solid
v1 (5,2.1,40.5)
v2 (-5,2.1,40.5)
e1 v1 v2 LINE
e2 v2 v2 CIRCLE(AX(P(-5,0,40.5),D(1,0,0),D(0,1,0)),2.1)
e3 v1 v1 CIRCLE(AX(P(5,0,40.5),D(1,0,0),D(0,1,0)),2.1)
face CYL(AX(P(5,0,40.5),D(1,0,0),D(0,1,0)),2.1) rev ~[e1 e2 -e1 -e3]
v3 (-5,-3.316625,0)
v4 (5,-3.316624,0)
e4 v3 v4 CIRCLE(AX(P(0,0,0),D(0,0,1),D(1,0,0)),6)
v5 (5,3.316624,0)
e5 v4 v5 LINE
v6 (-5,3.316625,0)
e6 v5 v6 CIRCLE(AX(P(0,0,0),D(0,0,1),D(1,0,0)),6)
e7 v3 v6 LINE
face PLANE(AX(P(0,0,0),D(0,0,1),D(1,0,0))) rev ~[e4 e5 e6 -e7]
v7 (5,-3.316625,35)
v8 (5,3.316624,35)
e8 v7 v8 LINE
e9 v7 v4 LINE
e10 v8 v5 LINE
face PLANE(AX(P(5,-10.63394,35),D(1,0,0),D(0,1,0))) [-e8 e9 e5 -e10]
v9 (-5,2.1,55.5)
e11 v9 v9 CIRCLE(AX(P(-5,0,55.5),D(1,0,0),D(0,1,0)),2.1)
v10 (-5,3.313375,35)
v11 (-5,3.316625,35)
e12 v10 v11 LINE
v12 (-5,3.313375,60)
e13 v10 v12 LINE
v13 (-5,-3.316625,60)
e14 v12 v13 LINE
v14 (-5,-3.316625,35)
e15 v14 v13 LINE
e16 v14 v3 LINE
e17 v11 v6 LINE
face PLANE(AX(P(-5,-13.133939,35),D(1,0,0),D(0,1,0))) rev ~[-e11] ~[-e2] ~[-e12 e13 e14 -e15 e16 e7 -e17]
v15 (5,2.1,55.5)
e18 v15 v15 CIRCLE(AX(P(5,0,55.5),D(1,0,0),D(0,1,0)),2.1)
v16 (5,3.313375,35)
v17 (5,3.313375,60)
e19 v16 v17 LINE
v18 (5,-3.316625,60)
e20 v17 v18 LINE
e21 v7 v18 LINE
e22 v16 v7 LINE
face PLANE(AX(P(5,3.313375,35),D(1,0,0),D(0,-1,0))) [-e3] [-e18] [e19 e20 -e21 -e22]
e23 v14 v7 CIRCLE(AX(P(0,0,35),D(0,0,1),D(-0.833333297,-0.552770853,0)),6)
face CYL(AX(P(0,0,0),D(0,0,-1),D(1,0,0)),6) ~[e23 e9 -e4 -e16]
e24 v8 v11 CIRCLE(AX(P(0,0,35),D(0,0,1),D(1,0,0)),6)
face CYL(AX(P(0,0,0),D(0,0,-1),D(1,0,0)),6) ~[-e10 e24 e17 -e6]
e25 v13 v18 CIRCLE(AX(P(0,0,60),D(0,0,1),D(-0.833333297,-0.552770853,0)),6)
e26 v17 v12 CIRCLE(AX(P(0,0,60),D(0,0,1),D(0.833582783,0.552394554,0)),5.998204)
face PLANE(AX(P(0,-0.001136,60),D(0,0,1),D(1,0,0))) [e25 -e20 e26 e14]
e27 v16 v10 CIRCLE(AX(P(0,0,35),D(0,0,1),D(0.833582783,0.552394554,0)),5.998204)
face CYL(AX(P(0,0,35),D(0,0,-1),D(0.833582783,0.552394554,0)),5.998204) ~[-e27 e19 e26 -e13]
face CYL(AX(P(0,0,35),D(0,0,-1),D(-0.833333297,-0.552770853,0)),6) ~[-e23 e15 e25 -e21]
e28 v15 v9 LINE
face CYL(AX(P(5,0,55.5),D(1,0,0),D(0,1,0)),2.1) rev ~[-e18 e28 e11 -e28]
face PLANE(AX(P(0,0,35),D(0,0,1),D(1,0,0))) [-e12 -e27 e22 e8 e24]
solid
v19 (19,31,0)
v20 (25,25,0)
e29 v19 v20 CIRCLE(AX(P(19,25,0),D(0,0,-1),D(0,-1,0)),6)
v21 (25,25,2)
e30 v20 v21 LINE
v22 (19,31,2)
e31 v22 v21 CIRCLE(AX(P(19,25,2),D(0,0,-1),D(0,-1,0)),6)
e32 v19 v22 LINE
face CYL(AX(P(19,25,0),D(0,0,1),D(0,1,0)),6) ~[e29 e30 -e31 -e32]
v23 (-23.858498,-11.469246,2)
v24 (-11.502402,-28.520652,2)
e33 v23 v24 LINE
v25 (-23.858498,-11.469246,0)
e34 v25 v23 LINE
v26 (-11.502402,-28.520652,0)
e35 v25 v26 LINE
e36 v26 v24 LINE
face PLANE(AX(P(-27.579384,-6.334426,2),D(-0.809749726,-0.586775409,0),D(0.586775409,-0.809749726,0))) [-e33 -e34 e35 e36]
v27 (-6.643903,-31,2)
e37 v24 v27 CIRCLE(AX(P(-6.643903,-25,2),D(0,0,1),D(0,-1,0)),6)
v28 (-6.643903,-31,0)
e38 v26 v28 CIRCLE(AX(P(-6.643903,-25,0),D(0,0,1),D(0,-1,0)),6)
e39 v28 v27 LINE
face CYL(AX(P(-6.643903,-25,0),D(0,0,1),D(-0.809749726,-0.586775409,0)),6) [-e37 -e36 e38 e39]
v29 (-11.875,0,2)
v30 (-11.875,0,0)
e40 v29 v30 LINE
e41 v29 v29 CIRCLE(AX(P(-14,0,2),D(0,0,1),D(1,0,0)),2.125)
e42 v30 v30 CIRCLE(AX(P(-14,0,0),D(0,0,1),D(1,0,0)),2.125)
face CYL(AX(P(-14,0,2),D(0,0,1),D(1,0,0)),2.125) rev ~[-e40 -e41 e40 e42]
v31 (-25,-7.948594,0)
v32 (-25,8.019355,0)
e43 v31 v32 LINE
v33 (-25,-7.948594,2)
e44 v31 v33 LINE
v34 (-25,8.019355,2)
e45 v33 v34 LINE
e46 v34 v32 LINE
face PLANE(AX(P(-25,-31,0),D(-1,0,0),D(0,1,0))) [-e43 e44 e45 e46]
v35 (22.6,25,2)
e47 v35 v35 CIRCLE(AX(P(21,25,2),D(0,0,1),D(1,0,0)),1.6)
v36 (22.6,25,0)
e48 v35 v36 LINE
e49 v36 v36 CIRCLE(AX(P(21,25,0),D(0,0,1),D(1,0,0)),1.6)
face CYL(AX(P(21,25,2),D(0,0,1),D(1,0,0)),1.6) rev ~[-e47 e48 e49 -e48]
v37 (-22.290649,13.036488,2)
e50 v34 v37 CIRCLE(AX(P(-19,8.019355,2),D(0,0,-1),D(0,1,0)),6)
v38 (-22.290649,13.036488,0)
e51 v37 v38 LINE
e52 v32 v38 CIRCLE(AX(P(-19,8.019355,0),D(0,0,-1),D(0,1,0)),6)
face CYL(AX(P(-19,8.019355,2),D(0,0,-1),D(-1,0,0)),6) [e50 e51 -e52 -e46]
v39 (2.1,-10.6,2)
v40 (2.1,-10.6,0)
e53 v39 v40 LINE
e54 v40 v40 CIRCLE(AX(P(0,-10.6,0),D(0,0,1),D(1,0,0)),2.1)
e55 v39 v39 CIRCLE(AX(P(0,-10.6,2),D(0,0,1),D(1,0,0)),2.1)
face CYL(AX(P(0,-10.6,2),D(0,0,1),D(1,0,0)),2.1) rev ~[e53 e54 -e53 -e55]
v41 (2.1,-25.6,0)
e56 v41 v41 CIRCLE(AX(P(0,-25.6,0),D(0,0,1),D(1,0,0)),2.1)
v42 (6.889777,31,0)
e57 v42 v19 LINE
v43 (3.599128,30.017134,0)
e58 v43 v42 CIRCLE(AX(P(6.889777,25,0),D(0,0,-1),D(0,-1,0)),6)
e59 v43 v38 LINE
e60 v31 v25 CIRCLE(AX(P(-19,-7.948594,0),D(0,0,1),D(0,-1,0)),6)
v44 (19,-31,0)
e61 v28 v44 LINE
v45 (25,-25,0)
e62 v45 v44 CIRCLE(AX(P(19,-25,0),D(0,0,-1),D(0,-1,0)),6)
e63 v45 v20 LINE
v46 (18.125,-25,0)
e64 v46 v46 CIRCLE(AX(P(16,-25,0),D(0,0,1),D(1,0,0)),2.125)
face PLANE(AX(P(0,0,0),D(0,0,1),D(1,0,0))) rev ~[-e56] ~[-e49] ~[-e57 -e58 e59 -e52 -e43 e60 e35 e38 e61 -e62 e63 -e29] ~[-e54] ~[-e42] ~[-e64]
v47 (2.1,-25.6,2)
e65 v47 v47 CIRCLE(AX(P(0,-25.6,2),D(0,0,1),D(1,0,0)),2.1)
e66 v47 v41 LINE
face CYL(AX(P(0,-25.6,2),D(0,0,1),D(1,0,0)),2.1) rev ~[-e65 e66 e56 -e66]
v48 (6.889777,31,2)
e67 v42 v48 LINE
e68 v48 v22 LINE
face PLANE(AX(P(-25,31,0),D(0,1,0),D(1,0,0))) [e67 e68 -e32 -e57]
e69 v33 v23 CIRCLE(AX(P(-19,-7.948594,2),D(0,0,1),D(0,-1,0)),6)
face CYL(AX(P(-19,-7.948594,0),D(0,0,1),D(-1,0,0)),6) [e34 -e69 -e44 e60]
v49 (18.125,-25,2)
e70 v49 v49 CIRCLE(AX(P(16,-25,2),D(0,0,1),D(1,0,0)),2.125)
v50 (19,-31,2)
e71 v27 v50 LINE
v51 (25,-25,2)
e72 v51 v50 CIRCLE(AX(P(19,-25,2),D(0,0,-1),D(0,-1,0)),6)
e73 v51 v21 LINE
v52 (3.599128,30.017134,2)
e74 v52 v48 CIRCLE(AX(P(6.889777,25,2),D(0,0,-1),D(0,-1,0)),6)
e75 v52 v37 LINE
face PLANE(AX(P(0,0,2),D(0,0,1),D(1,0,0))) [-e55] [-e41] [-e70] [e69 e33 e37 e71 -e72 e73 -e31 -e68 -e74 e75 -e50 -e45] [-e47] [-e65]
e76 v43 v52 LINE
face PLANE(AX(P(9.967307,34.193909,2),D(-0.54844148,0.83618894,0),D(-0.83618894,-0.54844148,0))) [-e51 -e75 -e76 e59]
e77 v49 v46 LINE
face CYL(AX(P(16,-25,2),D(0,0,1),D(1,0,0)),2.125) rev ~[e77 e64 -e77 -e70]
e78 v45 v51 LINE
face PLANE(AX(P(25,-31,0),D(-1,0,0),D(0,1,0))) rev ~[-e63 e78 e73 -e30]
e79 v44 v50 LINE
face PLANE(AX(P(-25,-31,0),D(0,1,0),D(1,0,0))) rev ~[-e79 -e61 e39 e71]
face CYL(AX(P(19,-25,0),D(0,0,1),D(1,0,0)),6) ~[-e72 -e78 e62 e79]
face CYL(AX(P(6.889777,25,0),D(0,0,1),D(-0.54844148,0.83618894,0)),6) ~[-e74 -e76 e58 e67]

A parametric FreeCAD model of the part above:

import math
import FreeCAD as App
import Part
import Sketcher

V = App.Vector


def edges_at(feature, points):
    """Names of the edges that pass closest to the given points."""
    edges = feature.Shape.Edges
    near = lambda p: min(range(len(edges)), key=lambda i: edges[i].distToShape(Part.Vertex(*p))[0])
    return sorted({f"Edge{near(p) + 1}" for p in points})


def add_polygon(sketch, points):
    """Adds a closed chain of lines whose ends are joined by coincident constraints."""
    first, n = sketch.GeometryCount, len(points)
    for a, b in zip(points, points[1:] + points[:1]):
        sketch.addGeometry(Part.LineSegment(App.Vector(*a, 0), App.Vector(*b, 0)), False)
    for i in range(n):
        sketch.addConstraint(Sketcher.Constraint("Coincident", first + i, 2, first + (i + 1) % n, 1))

doc = App.newDocument("Part")
params = doc.addObject("Spreadsheet::Sheet", "Params")
for row, (alias, value) in enumerate([
    ("sketch1_width", "50 mm"),
    ("sketch1_height", "62 mm"),
    ("pad1_length", "2 mm"),
    ("sketch2_diameter", "3.2 mm"),
    ("sketch2_diameter2", "4.25 mm"),
    ("sketch3_diameter", "4.2 mm"),
    ("fillet_radius", "6 mm"),
    ("sketch5_diameter", "12 mm"),
    ("pad2_length", "35 mm"),
    ("sketch6_radius", "6 mm"),
    ("sketch6_height", "6.63 mm"),
    ("pad3_length", "25 mm"),
    ("sketch7_diameter", "4.2 mm"),
], start=1):
    params.set(f"A{row}", alias)
    params.set(f"B{row}", "=" + value)
    params.setAlias(f"B{row}", alias)

body = doc.addObject("PartDesign::Body", "Body")

sketch1 = body.newObject("Sketcher::SketchObject", "Sketch")
sketch1.AttachmentSupport = (doc.getObject("XY_Plane"), [""])
sketch1.MapMode = "FlatFace"
add_polygon(sketch1, [(-25, 31), (-25, -31), (25, -31), (25, 31)])
sketch1.addConstraint(Sketcher.Constraint("Vertical", 0))
sketch1.addConstraint(Sketcher.Constraint("Horizontal", 1))
sketch1.addConstraint(Sketcher.Constraint("Vertical", 2))
sketch1.addConstraint(Sketcher.Constraint("Horizontal", 3))
sketch1.addConstraint(Sketcher.Constraint("Symmetric", 0, 2, 2, 2, -1, 1))
sketch1.addConstraint(Sketcher.Constraint("DistanceX", 1, 1, 1, 2, 50.0))
sketch1.addConstraint(Sketcher.Constraint("DistanceY", 0, 2, 0, 1, 62.0))
sketch1.setExpression("Constraints[9]", "Params.sketch1_width")
sketch1.setExpression("Constraints[10]", "Params.sketch1_height")
pad1 = body.newObject("PartDesign::Pad", "Pad")
pad1.Profile = sketch1
pad1.setExpression("Length", "Params.pad1_length")

sketch2 = body.newObject("Sketcher::SketchObject", "Sketch001")
sketch2.AttachmentSupport = (doc.getObject("XY_Plane"), [""])
sketch2.MapMode = "FlatFace"
sketch2.AttachmentOffset = App.Placement(V(0, 0, 2), App.Rotation())
sketch2.addGeometry(Part.Circle(V(16, -25, 0), V(0, 0, 1), 2.1), False)
sketch2.addGeometry(Part.Circle(V(-14, 0, 0), V(0, 0, 1), 2.1), False)
sketch2.addGeometry(Part.Circle(V(21, 25, 0), V(0, 0, 1), 1.6), False)
sketch2.addConstraint(Sketcher.Constraint("Equal", 0, 1))
sketch2.addConstraint(Sketcher.Constraint("PointOnObject", 1, 3, -1))
sketch2.addConstraint(Sketcher.Constraint("Diameter", 2, 3.2))
sketch2.addConstraint(Sketcher.Constraint("Diameter", 0, 4.25))
sketch2.addConstraint(Sketcher.Constraint("DistanceX", -1, 1, 0, 3, 16.0))
sketch2.addConstraint(Sketcher.Constraint("DistanceY", 0, 3, -1, 1, 25.0))
sketch2.addConstraint(Sketcher.Constraint("DistanceX", 1, 3, -1, 1, 14.0))
sketch2.addConstraint(Sketcher.Constraint("DistanceX", -1, 1, 2, 3, 21.0))
sketch2.addConstraint(Sketcher.Constraint("DistanceY", -1, 1, 2, 3, 25.0))
sketch2.setExpression("Constraints[2]", "Params.sketch2_diameter")
sketch2.setExpression("Constraints[3]", "Params.sketch2_diameter2")
pocket1 = body.newObject("PartDesign::Pocket", "Pocket")
pocket1.Profile = sketch2
pocket1.Type = "ThroughAll"

sketch3 = body.newObject("Sketcher::SketchObject", "Sketch002")
sketch3.AttachmentSupport = (doc.getObject("XY_Plane"), [""])
sketch3.MapMode = "FlatFace"
sketch3.AttachmentOffset = App.Placement(V(0, 0, 2), App.Rotation())
sketch3.addGeometry(Part.Circle(V(0, -10.6, 0), V(0, 0, 1), 2.1), False)
sketch3.addGeometry(Part.Circle(V(0, -25.6, 0), V(0, 0, 1), 2.1), False)
sketch3.addConstraint(Sketcher.Constraint("Equal", 0, 1))
sketch3.addConstraint(Sketcher.Constraint("PointOnObject", 0, 3, -2))
sketch3.addConstraint(Sketcher.Constraint("PointOnObject", 1, 3, -2))
sketch3.addConstraint(Sketcher.Constraint("Diameter", 0, 4.2))
sketch3.addConstraint(Sketcher.Constraint("DistanceY", 1, 3, 0, 3, 15.0))
sketch3.addConstraint(Sketcher.Constraint("DistanceY", 0, 3, -1, 1, 10.6))
sketch3.setExpression("Constraints[3]", "Params.sketch3_diameter")
pocket2 = body.newObject("PartDesign::Pocket", "Pocket001")
pocket2.Profile = sketch3
pocket2.Type = "ThroughAll"

sketch4 = body.newObject("Sketcher::SketchObject", "Sketch003")
sketch4.AttachmentSupport = (doc.getObject("XY_Plane"), [""])
sketch4.MapMode = "FlatFace"
sketch4.AttachmentOffset = App.Placement(V(0, 0, 2), App.Rotation())
add_polygon(sketch4, [(-28, 10), (10, 34), (-37, 46), (-40, -35), (-5, -37), (-28, -6)])
sketch4.addConstraint(Sketcher.Constraint("Vertical", 5))
sketch4.addConstraint(Sketcher.Constraint("DistanceY", 3, 2, -1, 1, 36.813499))
sketch4.addConstraint(Sketcher.Constraint("DistanceY", -1, 1, 5, 2, 9.567701))
sketch4.addConstraint(Sketcher.Constraint("DistanceX", 1, 2, 0, 2, 46.7125))
sketch4.addConstraint(Sketcher.Constraint("DistanceY", 2, 2, 0, 2, 69.571801))
sketch4.addConstraint(Sketcher.Constraint("Distance", 0, 44.902162))
sketch4.addConstraint(Sketcher.Constraint("Distance", 2, 81.217871))
sketch4.addConstraint(Sketcher.Constraint("DistanceY", 5, 1, 5, 2, 15.902127))
sketch4.addConstraint(Sketcher.Constraint("DistanceY", -1, 1, 0, 2, 34.193909))
sketch4.addConstraint(Sketcher.Constraint("DistanceY", -1, 1, 1, 2, 45.789211))
sketch4.addConstraint(Sketcher.Constraint("DistanceX", 2, 2, -1, 1, 39.616409))
sketch4.addConstraint(Sketcher.Constraint("DistanceX", 3, 2, -1, 1, 5.49309))
pocket3 = body.newObject("PartDesign::Pocket", "Pocket002")
pocket3.Profile = sketch4
pocket3.Type = "ThroughAll"
doc.recompute()

fillet = body.newObject("PartDesign::Fillet", "Fillet")
fillet.Base = (pocket3, edges_at(pocket3, [
    (-9.706, -31, 1),
    (-25, -9.894, 1),
    (-25, 11.259, 1),
    (5.098, 31, 1),
    (25, 31, 1),
    (25, -31, 1),
]))
fillet.setExpression("Radius", "Params.fillet_radius")
body2 = doc.addObject("PartDesign::Body", "Body001")

sketch5 = body2.newObject("Sketcher::SketchObject", "Sketch004")
sketch5.AttachmentSupport = (doc.getObject("XY_Plane001"), [""])
sketch5.MapMode = "FlatFace"
sketch5.addGeometry(Part.Circle(V(0, 0, 0), V(0, 0, 1), 6), False)
sketch5.addConstraint(Sketcher.Constraint("Coincident", 0, 3, -1, 1))
sketch5.addConstraint(Sketcher.Constraint("Diameter", 0, 12.0))
sketch5.setExpression("Constraints[1]", "Params.sketch5_diameter")
pad2 = body2.newObject("PartDesign::Pad", "Pad001")
pad2.Profile = sketch5
pad2.setExpression("Length", "Params.pad2_length")

sketch6 = body2.newObject("Sketcher::SketchObject", "Sketch005")
sketch6.AttachmentSupport = (doc.getObject("XY_Plane001"), [""])
sketch6.MapMode = "FlatFace"
sketch6.AttachmentOffset = App.Placement(V(0, 0, 35), App.Rotation())
sketch6.addGeometry(Part.ArcOfCircle(Part.Circle(V(0, 0, 0), V(0, 0, 1), 6), math.radians(-146), math.radians(-34)), False)
sketch6.addGeometry(Part.LineSegment(V(5, -3, 0), V(5, 3, 0)), False)
sketch6.addGeometry(Part.ArcOfCircle(Part.Circle(V(0, 0, 0), V(0, 0, 1), 6), math.radians(34), math.radians(146)), False)
sketch6.addGeometry(Part.LineSegment(V(-5, 3, 0), V(-5, -3, 0)), False)
sketch6.addConstraint(Sketcher.Constraint("Coincident", 0, 2, 1, 1))
sketch6.addConstraint(Sketcher.Constraint("Coincident", 1, 2, 2, 1))
sketch6.addConstraint(Sketcher.Constraint("Coincident", 2, 2, 3, 1))
sketch6.addConstraint(Sketcher.Constraint("Coincident", 3, 2, 0, 1))
sketch6.addConstraint(Sketcher.Constraint("Vertical", 1))
sketch6.addConstraint(Sketcher.Constraint("Vertical", 3))
sketch6.addConstraint(Sketcher.Constraint("Coincident", 0, 3, -1, 1))
sketch6.addConstraint(Sketcher.Constraint("Coincident", 2, 3, -1, 1))
sketch6.addConstraint(Sketcher.Constraint("Horizontal", 1, 2, 2, 2))
sketch6.addConstraint(Sketcher.Constraint("Radius", 0, 6.0))
sketch6.addConstraint(Sketcher.Constraint("DistanceX", -1, 1, 0, 2, 5.0))
sketch6.addConstraint(Sketcher.Constraint("DistanceY", 1, 1, 1, 2, 6.63))
sketch6.setExpression("Constraints[9]", "Params.sketch6_radius")
sketch6.setExpression("Constraints[11]", "Params.sketch6_height")
pad3 = body2.newObject("PartDesign::Pad", "Pad002")
pad3.Profile = sketch6
pad3.setExpression("Length", "Params.pad3_length")

sketch7 = body2.newObject("Sketcher::SketchObject", "Sketch006")
sketch7.AttachmentSupport = (doc.getObject("YZ_Plane001"), [""])
sketch7.MapMode = "FlatFace"
sketch7.AttachmentOffset = App.Placement(V(0, 0, 5), App.Rotation())
sketch7.addGeometry(Part.Circle(V(0, 55.5, 0), V(0, 0, 1), 2.1), False)
sketch7.addGeometry(Part.Circle(V(0, 40.5, 0), V(0, 0, 1), 2.1), False)
sketch7.addConstraint(Sketcher.Constraint("Equal", 0, 1))
sketch7.addConstraint(Sketcher.Constraint("PointOnObject", 0, 3, -2))
sketch7.addConstraint(Sketcher.Constraint("PointOnObject", 1, 3, -2))
sketch7.addConstraint(Sketcher.Constraint("Diameter", 0, 4.2))
sketch7.addConstraint(Sketcher.Constraint("DistanceY", 1, 3, 0, 3, 15.0))
sketch7.addConstraint(Sketcher.Constraint("DistanceY", -1, 1, 0, 3, 55.5))
sketch7.setExpression("Constraints[3]", "Params.sketch7_diameter")
pocket4 = body2.newObject("PartDesign::Pocket", "Pocket003")
pocket4.Profile = sketch7
pocket4.Type = "ThroughAll"

sketch8 = body2.newObject("Sketcher::SketchObject", "Sketch007")
sketch8.AttachmentSupport = (doc.getObject("XY_Plane001"), [""])
sketch8.MapMode = "FlatFace"
sketch8.AttachmentOffset = App.Placement(V(0, 0, 35), App.Rotation())
add_polygon(sketch8, [(-10, 11), (-10, -13), (-5, -13), (-5, 11)])
add_polygon(sketch8, [(5, 12), (5, -11), (12, -11), (12, 12)])
sketch8.addConstraint(Sketcher.Constraint("Vertical", 0))
sketch8.addConstraint(Sketcher.Constraint("Horizontal", 1))
sketch8.addConstraint(Sketcher.Constraint("Vertical", 2))
sketch8.addConstraint(Sketcher.Constraint("Horizontal", 3))
sketch8.addConstraint(Sketcher.Constraint("Vertical", 4))
sketch8.addConstraint(Sketcher.Constraint("Horizontal", 5))
sketch8.addConstraint(Sketcher.Constraint("Vertical", 6))
sketch8.addConstraint(Sketcher.Constraint("Horizontal", 7))
sketch8.addConstraint(Sketcher.Constraint("DistanceX", 1, 2, -1, 1, 5.0))
sketch8.addConstraint(Sketcher.Constraint("DistanceX", -1, 1, 4, 2, 5.0))
sketch8.addConstraint(Sketcher.Constraint("DistanceY", 1, 2, 4, 2, 2.499999))
sketch8.addConstraint(Sketcher.Constraint("DistanceX", 1, 1, 1, 2, 5.144716))
sketch8.addConstraint(Sketcher.Constraint("DistanceX", 5, 1, 5, 2, 6.816065))
sketch8.addConstraint(Sketcher.Constraint("DistanceY", 0, 2, 0, 1, 23.774506))
sketch8.addConstraint(Sketcher.Constraint("DistanceY", 4, 2, 4, 1, 22.941175))
sketch8.addConstraint(Sketcher.Constraint("DistanceY", 0, 2, -1, 1, 13.133939))
pocket5 = body2.newObject("PartDesign::Pocket", "Pocket004")
pocket5.Profile = sketch8
pocket5.Type = "ThroughAll"

doc.recompute()
